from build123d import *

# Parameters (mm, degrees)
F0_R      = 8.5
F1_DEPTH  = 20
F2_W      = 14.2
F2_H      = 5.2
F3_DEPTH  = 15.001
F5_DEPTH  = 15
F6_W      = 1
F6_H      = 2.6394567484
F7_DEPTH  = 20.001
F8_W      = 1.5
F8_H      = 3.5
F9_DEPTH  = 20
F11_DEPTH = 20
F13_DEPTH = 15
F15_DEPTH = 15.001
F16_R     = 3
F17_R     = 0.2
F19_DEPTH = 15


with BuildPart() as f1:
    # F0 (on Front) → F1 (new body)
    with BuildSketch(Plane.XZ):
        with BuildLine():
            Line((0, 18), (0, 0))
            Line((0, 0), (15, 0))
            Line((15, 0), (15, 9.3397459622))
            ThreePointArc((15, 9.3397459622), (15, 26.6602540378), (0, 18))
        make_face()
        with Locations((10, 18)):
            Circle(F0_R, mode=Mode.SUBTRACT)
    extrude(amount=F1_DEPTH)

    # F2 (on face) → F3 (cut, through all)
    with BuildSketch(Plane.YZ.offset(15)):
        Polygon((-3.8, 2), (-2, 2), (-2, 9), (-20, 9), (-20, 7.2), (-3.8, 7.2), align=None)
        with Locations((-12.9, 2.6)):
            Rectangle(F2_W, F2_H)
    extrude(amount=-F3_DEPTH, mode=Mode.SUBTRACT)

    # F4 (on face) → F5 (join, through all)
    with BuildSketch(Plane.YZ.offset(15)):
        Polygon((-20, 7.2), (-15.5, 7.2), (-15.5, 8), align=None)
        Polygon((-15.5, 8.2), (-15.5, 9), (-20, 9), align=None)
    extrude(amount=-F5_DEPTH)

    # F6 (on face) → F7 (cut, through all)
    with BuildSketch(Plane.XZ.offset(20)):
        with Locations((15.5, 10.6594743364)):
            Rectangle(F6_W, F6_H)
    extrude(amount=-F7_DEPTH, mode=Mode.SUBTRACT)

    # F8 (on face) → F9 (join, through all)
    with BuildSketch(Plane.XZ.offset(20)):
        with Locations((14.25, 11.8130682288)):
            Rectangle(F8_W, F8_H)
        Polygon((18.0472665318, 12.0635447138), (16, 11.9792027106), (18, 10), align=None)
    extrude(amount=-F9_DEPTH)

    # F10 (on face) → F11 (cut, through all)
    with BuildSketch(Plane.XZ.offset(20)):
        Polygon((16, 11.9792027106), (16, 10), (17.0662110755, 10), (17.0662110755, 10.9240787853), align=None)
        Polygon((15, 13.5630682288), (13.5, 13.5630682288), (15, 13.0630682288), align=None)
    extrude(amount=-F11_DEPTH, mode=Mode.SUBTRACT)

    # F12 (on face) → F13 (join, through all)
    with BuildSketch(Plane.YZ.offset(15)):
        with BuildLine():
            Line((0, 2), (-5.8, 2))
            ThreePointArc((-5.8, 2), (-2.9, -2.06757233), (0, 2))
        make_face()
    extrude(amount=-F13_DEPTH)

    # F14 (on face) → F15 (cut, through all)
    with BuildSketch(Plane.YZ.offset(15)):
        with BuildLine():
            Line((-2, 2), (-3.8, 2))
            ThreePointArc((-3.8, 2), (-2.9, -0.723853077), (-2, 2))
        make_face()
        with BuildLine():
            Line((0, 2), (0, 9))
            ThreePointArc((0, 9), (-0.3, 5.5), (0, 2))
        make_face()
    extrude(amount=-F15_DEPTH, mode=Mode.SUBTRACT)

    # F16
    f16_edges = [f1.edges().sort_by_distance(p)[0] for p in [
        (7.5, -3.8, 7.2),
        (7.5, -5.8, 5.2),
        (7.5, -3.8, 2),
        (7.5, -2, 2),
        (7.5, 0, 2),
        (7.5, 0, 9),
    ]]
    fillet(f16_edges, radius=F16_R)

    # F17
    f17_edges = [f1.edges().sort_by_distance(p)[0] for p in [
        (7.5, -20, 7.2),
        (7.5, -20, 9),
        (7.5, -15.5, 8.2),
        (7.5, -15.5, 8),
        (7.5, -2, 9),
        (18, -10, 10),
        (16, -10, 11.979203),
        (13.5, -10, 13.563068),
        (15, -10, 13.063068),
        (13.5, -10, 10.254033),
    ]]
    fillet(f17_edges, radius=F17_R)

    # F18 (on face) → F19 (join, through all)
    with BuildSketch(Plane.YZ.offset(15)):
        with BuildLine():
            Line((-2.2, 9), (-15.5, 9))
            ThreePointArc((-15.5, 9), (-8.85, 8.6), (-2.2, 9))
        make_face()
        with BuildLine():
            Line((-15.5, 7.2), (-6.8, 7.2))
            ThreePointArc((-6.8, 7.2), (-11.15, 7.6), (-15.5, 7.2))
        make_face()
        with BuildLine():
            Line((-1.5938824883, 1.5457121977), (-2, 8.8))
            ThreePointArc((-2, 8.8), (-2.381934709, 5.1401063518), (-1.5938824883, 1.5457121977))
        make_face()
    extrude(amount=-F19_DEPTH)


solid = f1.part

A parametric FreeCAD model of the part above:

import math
import FreeCAD as App
import Part
import Sketcher
from FreeCAD import Vector
Q = App.Units.Quantity


def edges_at(feature, points):
    """Names of the edges that pass closest to the given points."""
    edges = feature.Shape.Edges
    near = lambda p: min(range(len(edges)), key=lambda i: edges[i].distToShape(Part.Vertex(*p))[0])
    return sorted({f"Edge{near(p) + 1}" for p in points})


def add_polygon(sketch, points):
    """Adds a closed chain of lines whose ends are joined by coincident constraints."""
    first, n = sketch.GeometryCount, len(points)
    for a, b in zip(points, points[1:] + points[:1]):
        sketch.addGeometry(Part.LineSegment(App.Vector(*a, 0), App.Vector(*b, 0)), False)
    for i in range(n):
        sketch.addConstraint(Sketcher.Constraint("Coincident", first + i, 2, first + (i + 1) % n, 1))

doc = App.newDocument("Part")
params = doc.addObject("Spreadsheet::Sheet", "Params")
for row, (alias, value) in enumerate([
    ("sketch1_diameter", "17 mm"),
    ("sketch1_radius", "10 mm"),
    ("sketch1_width", "15 mm"),
    ("sketch1_height", "18 mm"),
    ("pad1_length", "20 mm"),
    ("sketch2_width", "18 mm"),
    ("sketch2_height", "7 mm"),
    ("sketch2_width2", "1.8 mm"),
    ("sketch2_width3", "14.2 mm"),
    ("sketch3_width", "4.5 mm"),
    ("sketch3_height", "0.8 mm"),
    ("pad2_length", "15 mm"),
    ("sketch4_width", "1 mm"),
    ("sketch5_width", "1.5 mm"),
    ("sketch5_height", "3.5 mm"),
    ("pad3_length", "20 mm"),
    ("sketch6_width", "1.5 mm"),
    ("sketch6_height", "0.5 mm"),
    ("sketch7_width", "5.8 mm"),
    ("sketch8_height", "7 mm"),
    ("sketch8_width", "1.8 mm"),
    ("fillet_radius", "3 mm"),
    ("fillet2_radius", "0.2 mm"),
    ("sketch9_width", "13.3 mm"),
    ("sketch9_width2", "8.7 mm"),
    ("pad5_length", "15 mm"),
], start=1):
    params.set(f"A{row}", alias)
    params.set(f"B{row}", "=" + value)
    params.setAlias(f"B{row}", alias)

body = doc.addObject("PartDesign::Body", "Body")

# Sketch on XZ plane
sketch1 = body.newObject("Sketcher::SketchObject", "Sketch")
sketch1.AttachmentSupport = (doc.getObject("XZ_Plane"), [""])
sketch1.MapMode = "FlatFace"
sketch1.addGeometry([
    Part.LineSegment(Vector(0, 18, 0), Vector(0, 0, 0)),  # 0
    Part.LineSegment(Vector(0, 0, 0), Vector(15, 0, 0)),  # 1
    Part.LineSegment(Vector(15, 0, 0), Vector(15, 9.339746, 0)),  # 2
    Part.ArcOfCircle(Part.Circle(Vector(10, 18, 0), Vector(0, 0, 1), 10), math.radians(-60), math.radians(180)),  # 3
    Part.Circle(Vector(10, 18, 0), Vector(0, 0, 1), 8.5),  # 4
], False)
sketch1.addConstraint([
    Sketcher.Constraint("Coincident", 0, 2, 1, 1),
    Sketcher.Constraint("Coincident", 1, 2, 2, 1),
    Sketcher.Constraint("Coincident", 2, 2, 3, 1),
    Sketcher.Constraint("Tangent", 3, 2, 0, 1),
    Sketcher.Constraint("Vertical", 0),
    Sketcher.Constraint("Horizontal", 1),
    Sketcher.Constraint("Vertical", 2),
    Sketcher.Constraint("Coincident", 0, 2, -1, 1),
    Sketcher.Constraint("Coincident", 4, 3, 3, 3),
    Sketcher.Constraint("Diameter", 4, Q("17 mm")),
    Sketcher.Constraint("Radius", 3, Q("10 mm")),
    Sketcher.Constraint("DistanceX", 1, 1, 1, 2, Q("15 mm")),
    Sketcher.Constraint("DistanceY", 0, 2, 0, 1, Q("18 mm")),
])
sketch1.setExpression("Constraints[9]", "Params.sketch1_diameter")
sketch1.setExpression("Constraints[10]", "Params.sketch1_radius")
sketch1.setExpression("Constraints[11]", "Params.sketch1_width")
sketch1.setExpression("Constraints[12]", "Params.sketch1_height")
pad1 = body.newObject("PartDesign::Pad", "Pad")
pad1.Profile = sketch1
pad1.setExpression("Length", "Params.pad1_length")

# Sketch on YZ plane
sketch2 = body.newObject("Sketcher::SketchObject", "Sketch001")
sketch2.AttachmentSupport = (doc.getObject("YZ_Plane"), [""])
sketch2.MapMode = "FlatFace"
sketch2.AttachmentOffset = App.Placement(Vector(0, 0, 15), App.Rotation())
add_polygon(sketch2, [(-3.8, 2), (-2, 2), (-2, 9), (-20, 9), (-20, 7.2), (-3.8, 7.2)])  # lines 0-5
add_polygon(sketch2, [(-20, 5.2), (-20, 0), (-5.8, 0), (-5.8, 5.2)])  # lines 6-9
sketch2.addConstraint([
    Sketcher.Constraint("Horizontal", 0),
    Sketcher.Constraint("Vertical", 1),
    Sketcher.Constraint("Horizontal", 2),
    Sketcher.Constraint("Vertical", 3),
    Sketcher.Constraint("Horizontal", 4),
    Sketcher.Constraint("Vertical", 5),
    Sketcher.Constraint("Vertical", 6),
    Sketcher.Constraint("Horizontal", 7),
    Sketcher.Constraint("Vertical", 8),
    Sketcher.Constraint("Horizontal", 9),
    Sketcher.Constraint("PointOnObject", 6, 2, -1),
    Sketcher.Constraint("Vertical", 3, 2, 6, 2),
    Sketcher.Constraint("Equal", 0, 3),
    Sketcher.Constraint("Equal", 5, 6),
    Sketcher.Constraint("DistanceX", 2, 2, 2, 1, Q("18 mm")),
    Sketcher.Constraint("DistanceY", 1, 1, 1, 2, Q("7 mm")),
    Sketcher.Constraint("DistanceX", 0, 1, 0, 2, Q("1.8 mm")),
    Sketcher.Constraint("DistanceX", 7, 1, 7, 2, Q("14.2 mm")),
    Sketcher.Constraint("DistanceX", 0, 2, -1, 1, Q("2 mm")),
    Sketcher.Constraint("DistanceY", -1, 1, 0, 2, Q("2 mm")),
])
sketch2.setExpression("Constraints[24]", "Params.sketch2_width")
sketch2.setExpression("Constraints[25]", "Params.sketch2_height")
sketch2.setExpression("Constraints[26]", "Params.sketch2_width2")
sketch2.setExpression("Constraints[27]", "Params.sketch2_width3")
pocket1 = body.newObject("PartDesign::Pocket", "Pocket")
pocket1.Profile = sketch2
pocket1.Type = "ThroughAll"

# Sketch on YZ plane
sketch3 = body.newObject("Sketcher::SketchObject", "Sketch002")
sketch3.AttachmentSupport = (doc.getObject("YZ_Plane"), [""])
sketch3.MapMode = "FlatFace"
sketch3.AttachmentOffset = App.Placement(Vector(0, 0, 15), App.Rotation())
add_polygon(sketch3, [(-20, 7.2), (-15.5, 7.2), (-15.5, 8)])  # lines 0-2
add_polygon(sketch3, [(-15.5, 8.2), (-15.5, 9), (-20, 9)])  # lines 3-5
sketch3.addConstraint([
    Sketcher.Constraint("Horizontal", 0),
    Sketcher.Constraint("Vertical", 1),
    Sketcher.Constraint("Vertical", 3),
    Sketcher.Constraint("Horizontal", 4),
    Sketcher.Constraint("Vertical", 1, 2, 3, 2),
    Sketcher.Constraint("Vertical", 2, 2, 4, 2),
    Sketcher.Constraint("Equal", 1, 3),
    Sketcher.Constraint("DistanceX", 0, 1, 0, 2, Q("4.5 mm")),
    Sketcher.Constraint("DistanceY", 1, 1, 1, 2, Q("0.8 mm")),
    Sketcher.Constraint("DistanceY", -1, 1, 1, 2, Q("8 mm")),
    Sketcher.Constraint("DistanceX", 2, 2, -1, 1, Q("20 mm")),
    Sketcher.Constraint("DistanceY", -1, 1, 3, 2, Q("9 mm")),
])
sketch3.setExpression("Constraints[13]", "Params.sketch3_width")
sketch3.setExpression("Constraints[14]", "Params.sketch3_height")
pad2 = body.newObject("PartDesign::Pad", "Pad001")
pad2.Profile = sketch3
pad2.setExpression("Length", "Params.pad2_length")
pad2.Reversed = True

# Sketch on XZ plane
sketch4 = body.newObject("Sketcher::SketchObject", "Sketch003")
sketch4.AttachmentSupport = (doc.getObject("XZ_Plane"), [""])
sketch4.MapMode = "FlatFace"
sketch4.AttachmentOffset = App.Placement(Vector(0, 0, 20), App.Rotation())
add_polygon(sketch4, [(15, 11.979203), (15, 9.339746), (16, 9.339746), (16, 11.979203)])  # lines 0-3
sketch4.addConstraint([
    Sketcher.Constraint("Vertical", 0),
    Sketcher.Constraint("Horizontal", 1),
    Sketcher.Constraint("Vertical", 2),
    Sketcher.Constraint("Horizontal", 3),
    Sketcher.Constraint("DistanceX", 1, 1, 1, 2, Q("1 mm")),
    Sketcher.Constraint("DistanceX", -1, 1, 0, 2, Q("15 mm")),
    Sketcher.Constraint("DistanceY", 0, 2, 0, 1, Q("2.639457 mm")),
    Sketcher.Constraint("DistanceY", -1, 1, 0, 2, Q("9.339746 mm")),
])
sketch4.setExpression("Constraints[8]", "Params.sketch4_width")
pocket2 = body.newObject("PartDesign::Pocket", "Pocket001")
pocket2.Profile = sketch4
pocket2.Type = "ThroughAll"

# Sketch on XZ plane
sketch5 = body.newObject("Sketcher::SketchObject", "Sketch004")
sketch5.AttachmentSupport = (doc.getObject("XZ_Plane"), [""])
sketch5.MapMode = "FlatFace"
sketch5.AttachmentOffset = App.Placement(Vector(0, 0, 20), App.Rotation())
add_polygon(sketch5, [(13.5, 13.563068), (13.5, 10.063068), (15, 10.063068), (15, 13.563068)])  # lines 0-3
add_polygon(sketch5, [(18.047267, 12.063545), (16, 11.979203), (18, 10)])  # lines 4-6
sketch5.addConstraint([
    Sketcher.Constraint("Vertical", 0),
    Sketcher.Constraint("Horizontal", 1),
    Sketcher.Constraint("Vertical", 2),
    Sketcher.Constraint("Horizontal", 3),
    Sketcher.Constraint("DistanceX", 1, 1, 1, 2, Q("1.5 mm")),
    Sketcher.Constraint("DistanceY", 0, 2, 0, 1, Q("3.5 mm")),
    Sketcher.Constraint("DistanceX", -1, 1, 1, 2, Q("15 mm")),
    Sketcher.Constraint("DistanceX", -1, 1, 4, 2, Q("16 mm")),
    Sketcher.Constraint("DistanceX", -1, 1, 5, 2, Q("18 mm")),
    Sketcher.Constraint("DistanceY", -1, 1, 5, 2, Q("10 mm")),
    Sketcher.Constraint("Distance", 5, Q("2.81376 mm")),
    Sketcher.Constraint("DistanceY", -1, 1, 0, 2, Q("10.063068 mm")),
    Sketcher.Constraint("Distance", 4, Q("2.049003 mm")),
    Sketcher.Constraint("Distance", 6, Q("2.064086 mm")),
])
sketch5.setExpression("Constraints[11]", "Params.sketch5_width")
sketch5.setExpression("Constraints[12]", "Params.sketch5_height")
pad3 = body.newObject("PartDesign::Pad", "Pad002")
pad3.Profile = sketch5
pad3.setExpression("Length", "Params.pad3_length")
pad3.Reversed = True

# Sketch on XZ plane
sketch6 = body.newObject("Sketcher::SketchObject", "Sketch005")
sketch6.AttachmentSupport = (doc.getObject("XZ_Plane"), [""])
sketch6.MapMode = "FlatFace"
sketch6.AttachmentOffset = App.Placement(Vector(0, 0, 20), App.Rotation())
add_polygon(sketch6, [(16, 11.979203), (16, 10), (17.066211, 10), (17.066211, 10.924079)])  # lines 0-3
add_polygon(sketch6, [(15, 13.563068), (13.5, 13.563068), (15, 13.063068)])  # lines 4-6
sketch6.addConstraint([
    Sketcher.Constraint("Vertical", 0),
    Sketcher.Constraint("Horizontal", 1),
    Sketcher.Constraint("Vertical", 2),
    Sketcher.Constraint("Horizontal", 4),
    Sketcher.Constraint("Vertical", 6),
    Sketcher.Constraint("DistanceX", 4, 2, 4, 1, Q("1.5 mm")),
    Sketcher.Constraint("DistanceY", 6, 1, 6, 2, Q("0.5 mm")),
    Sketcher.Constraint("DistanceX", -1, 1, 0, 2, Q("16 mm")),
    Sketcher.Constraint("DistanceY", -1, 1, 0, 2, Q("10 mm")),
    Sketcher.Constraint("DistanceX", -1, 1, 5, 2, Q("15 mm")),
    Sketcher.Constraint("DistanceX", 1, 1, 1, 2, Q("1.066211 mm")),
    Sketcher.Constraint("DistanceY", 2, 1, 2, 2, Q("0.924079 mm")),
    Sketcher.Constraint("Distance", 3, Q("1.500031 mm")),
    Sketcher.Constraint("DistanceY", -1, 1, 4, 2, Q("13.563068 mm")),
])
sketch6.setExpression("Constraints[12]", "Params.sketch6_width")
sketch6.setExpression("Constraints[13]", "Params.sketch6_height")
pocket3 = body.newObject("PartDesign::Pocket", "Pocket002")
pocket3.Profile = sketch6
pocket3.Type = "ThroughAll"

# Sketch on YZ plane
sketch7 = body.newObject("Sketcher::SketchObject", "Sketch006")
sketch7.AttachmentSupport = (doc.getObject("YZ_Plane"), [""])
sketch7.MapMode = "FlatFace"
sketch7.AttachmentOffset = App.Placement(Vector(0, 0, 15), App.Rotation())
sketch7.addGeometry([
    Part.LineSegment(Vector(0, 2, 0), Vector(-5.8, 2, 0)),
    Part.ArcOfCircle(Part.Circle(Vector(-2.9, 1, 0), Vector(0, 0, 1), 3.067572), math.radians(160.974394), math.radians(379.025606)),
], False)
sketch7.addConstraint([
    Sketcher.Constraint("Coincident", 0, 1, 1, 2),
    Sketcher.Constraint("Coincident", 1, 1, 0, 2),
    Sketcher.Constraint("Horizontal", 0),
    Sketcher.Constraint("PointOnObject", 0, 1, -2),
    Sketcher.Constraint("DistanceX", 0, 2, 0, 1, Q("5.8 mm")),
    Sketcher.Constraint("DistanceY", -1, 1, 1, 3, Q("1 mm")),
    Sketcher.Constraint("DistanceY", -1, 1, 0, 1, Q("2 mm")),
])
sketch7.setExpression("Constraints[4]", "Params.sketch7_width")
pad4 = body.newObject("PartDesign::Pad", "Pad003")
pad4.Profile = sketch7
pad4.Type = "UpToLast"
pad4.Reversed = True

# Sketch on YZ plane
sketch8 = body.newObject("Sketcher::SketchObject", "Sketch007")
sketch8.AttachmentSupport = (doc.getObject("YZ_Plane"), [""])
sketch8.MapMode = "FlatFace"
sketch8.AttachmentOffset = App.Placement(Vector(0, 0, 15), App.Rotation())
sketch8.addGeometry([
    Part.LineSegment(Vector(-2, 2, 0), Vector(-3.8, 2, 0)),
    Part.ArcOfCircle(Part.Circle(Vector(-2.9, 0.78676, 0), Vector(0, 0, 1), 1.510613), math.radians(126.568587), math.radians(413.431413)),
    Part.LineSegment(Vector(0, 2, 0), Vector(0, 9, 0)),
    Part.ArcOfCircle(Part.Circle(Vector(20.266667, 5.5, 0), Vector(0, 0, 1), 20.566667), math.radians(170.201815), math.radians(189.798185)),
], False)
sketch8.addConstraint([
    Sketcher.Constraint("Coincident", 0, 1, 1, 2),
    Sketcher.Constraint("Coincident", 1, 1, 0, 2),
    Sketcher.Constraint("Coincident", 2, 1, 3, 2),
    Sketcher.Constraint("Coincident", 3, 1, 2, 2),
    Sketcher.Constraint("Horizontal", 0),
    Sketcher.Constraint("Vertical", 2),
    Sketcher.Constraint("PointOnObject", 2, 1, -2),
    Sketcher.Constraint("Horizontal", 1, 1, 2, 1),
    Sketcher.Constraint("DistanceY", 2, 1, 2, 2, Q("7 mm")),
    Sketcher.Constraint("DistanceX", 0, 2, 0, 1, Q("1.8 mm")),
    Sketcher.Constraint("DistanceX", 0, 1, -1, 1, Q("2 mm")),
    Sketcher.Constraint("DistanceY", -1, 1, 0, 1, Q("2 mm")),
    Sketcher.Constraint("Radius", 1, Q("1.510613 mm")),
    Sketcher.Constraint("Radius", 3, Q("20.566667 mm")),
])
sketch8.setExpression("Constraints[8]", "Params.sketch8_height")
sketch8.setExpression("Constraints[9]", "Params.sketch8_width")
pocket4 = body.newObject("PartDesign::Pocket", "Pocket003")
pocket4.Profile = sketch8
pocket4.Type = "ThroughAll"
doc.recompute()

fillet = body.newObject("PartDesign::Fillet", "Fillet")
fillet.Base = (pocket4, edges_at(pocket4, [
    (7.5, -3.8, 7.2),
    (7.5, -5.8, 5.2),
    (7.5, -3.8, 2),
    (7.5, -2, 2),
    (7.5, 0, 2),
    (7.5, 0, 9),
]))
fillet.setExpression("Radius", "Params.fillet_radius")
doc.recompute()

fillet2 = body.newObject("PartDesign::Fillet", "Fillet001")
fillet2.Base = (fillet, edges_at(fillet, [
    (7.5, -20, 7.2),
    (7.5, -20, 9),
    (7.5, -15.5, 8.2),
    (7.5, -15.5, 8),
    (7.5, -2, 9),
    (18, -10, 10),
    (16, -10, 11.979),
    (13.5, -10, 13.563),
    (15, -10, 13.063),
    (13.5, -10, 10.254),
]))
fillet2.setExpression("Radius", "Params.fillet2_radius")

# Sketch on YZ plane
sketch9 = body.newObject("Sketcher::SketchObject", "Sketch008")
sketch9.AttachmentSupport = (doc.getObject("YZ_Plane"), [""])
sketch9.MapMode = "FlatFace"
sketch9.AttachmentOffset = App.Placement(Vector(0, 0, 15), App.Rotation())
sketch9.addGeometry([
    Part.LineSegment(Vector(-2.2, 9, 0), Vector(-15.5, 9, 0)),  # 0
    Part.ArcOfCircle(Part.Circle(Vector(-8.85, 64.078125, 0), Vector(0, 0, 1), 55.478125), math.radians(-96.884431), math.radians(-83.115569)),  # 1
    Part.LineSegment(Vector(-15.5, 7.2, 0), Vector(-6.8, 7.2, 0)),  # 2
    Part.ArcOfCircle(Part.Circle(Vector(-11.15, -16.253125, 0), Vector(0, 0, 1), 23.853125), math.radians(79.492394), math.radians(100.507606)),  # 3
    Part.LineSegment(Vector(-1.593882, 1.545712, 0), Vector(-2, 8.8, 0)),  # 4
    Part.ArcOfCircle(Part.Circle(Vector(9.15528, 5.785995, 0), Vector(0, 0, 1), 11.55528), math.radians(164.880472), math.radians(201.528029)),  # 5
], False)
sketch9.addConstraint([
    Sketcher.Constraint("Coincident", 0, 1, 1, 2),
    Sketcher.Constraint("Coincident", 1, 1, 0, 2),
    Sketcher.Constraint("Coincident", 2, 1, 3, 2),
    Sketcher.Constraint("Coincident", 3, 1, 2, 2),
    Sketcher.Constraint("Coincident", 4, 1, 5, 2),
    Sketcher.Constraint("Coincident", 5, 1, 4, 2),
    Sketcher.Constraint("Horizontal", 0),
    Sketcher.Constraint("Horizontal", 2),
    Sketcher.Constraint("Vertical", 1, 1, 2, 1),
    Sketcher.Constraint("DistanceX", 0, 2, 0, 1, Q("13.3 mm")),
    Sketcher.Constraint("DistanceX", 2, 1, 2, 2, Q("8.7 mm")),
    Sketcher.Constraint("DistanceY", -1, 1, 0, 1, Q("9 mm")),
    Sketcher.Constraint("DistanceX", 5, 1, -1, 1, Q("2 mm")),
    Sketcher.Constraint("DistanceX", 0, 1, -1, 1, Q("2.2 mm")),
    Sketcher.Constraint("DistanceY", -1, 1, 2, 1, Q("7.2 mm")),
    Sketcher.Constraint("DistanceY", -1, 1, 5, 1, Q("8.8 mm")),
    Sketcher.Constraint("Radius", 5, Q("11.55528 mm")),
    Sketcher.Constraint("Radius", 1, Q("55.478125 mm")),
    Sketcher.Constraint("Radius", 3, Q("23.853125 mm")),
    Sketcher.Constraint("DistanceX", -1, 1, 5, 3, Q("9.15528 mm")),
    Sketcher.Constraint("Distance", 4, Q("7.265647 mm")),
])
sketch9.setExpression("Constraints[9]", "Params.sketch9_width")
sketch9.setExpression("Constraints[10]", "Params.sketch9_width2")
pad5 = body.newObject("PartDesign::Pad", "Pad004")
pad5.Profile = sketch9
pad5.setExpression("Length", "Params.pad5_length")
pad5.Reversed = True

doc.recompute()
